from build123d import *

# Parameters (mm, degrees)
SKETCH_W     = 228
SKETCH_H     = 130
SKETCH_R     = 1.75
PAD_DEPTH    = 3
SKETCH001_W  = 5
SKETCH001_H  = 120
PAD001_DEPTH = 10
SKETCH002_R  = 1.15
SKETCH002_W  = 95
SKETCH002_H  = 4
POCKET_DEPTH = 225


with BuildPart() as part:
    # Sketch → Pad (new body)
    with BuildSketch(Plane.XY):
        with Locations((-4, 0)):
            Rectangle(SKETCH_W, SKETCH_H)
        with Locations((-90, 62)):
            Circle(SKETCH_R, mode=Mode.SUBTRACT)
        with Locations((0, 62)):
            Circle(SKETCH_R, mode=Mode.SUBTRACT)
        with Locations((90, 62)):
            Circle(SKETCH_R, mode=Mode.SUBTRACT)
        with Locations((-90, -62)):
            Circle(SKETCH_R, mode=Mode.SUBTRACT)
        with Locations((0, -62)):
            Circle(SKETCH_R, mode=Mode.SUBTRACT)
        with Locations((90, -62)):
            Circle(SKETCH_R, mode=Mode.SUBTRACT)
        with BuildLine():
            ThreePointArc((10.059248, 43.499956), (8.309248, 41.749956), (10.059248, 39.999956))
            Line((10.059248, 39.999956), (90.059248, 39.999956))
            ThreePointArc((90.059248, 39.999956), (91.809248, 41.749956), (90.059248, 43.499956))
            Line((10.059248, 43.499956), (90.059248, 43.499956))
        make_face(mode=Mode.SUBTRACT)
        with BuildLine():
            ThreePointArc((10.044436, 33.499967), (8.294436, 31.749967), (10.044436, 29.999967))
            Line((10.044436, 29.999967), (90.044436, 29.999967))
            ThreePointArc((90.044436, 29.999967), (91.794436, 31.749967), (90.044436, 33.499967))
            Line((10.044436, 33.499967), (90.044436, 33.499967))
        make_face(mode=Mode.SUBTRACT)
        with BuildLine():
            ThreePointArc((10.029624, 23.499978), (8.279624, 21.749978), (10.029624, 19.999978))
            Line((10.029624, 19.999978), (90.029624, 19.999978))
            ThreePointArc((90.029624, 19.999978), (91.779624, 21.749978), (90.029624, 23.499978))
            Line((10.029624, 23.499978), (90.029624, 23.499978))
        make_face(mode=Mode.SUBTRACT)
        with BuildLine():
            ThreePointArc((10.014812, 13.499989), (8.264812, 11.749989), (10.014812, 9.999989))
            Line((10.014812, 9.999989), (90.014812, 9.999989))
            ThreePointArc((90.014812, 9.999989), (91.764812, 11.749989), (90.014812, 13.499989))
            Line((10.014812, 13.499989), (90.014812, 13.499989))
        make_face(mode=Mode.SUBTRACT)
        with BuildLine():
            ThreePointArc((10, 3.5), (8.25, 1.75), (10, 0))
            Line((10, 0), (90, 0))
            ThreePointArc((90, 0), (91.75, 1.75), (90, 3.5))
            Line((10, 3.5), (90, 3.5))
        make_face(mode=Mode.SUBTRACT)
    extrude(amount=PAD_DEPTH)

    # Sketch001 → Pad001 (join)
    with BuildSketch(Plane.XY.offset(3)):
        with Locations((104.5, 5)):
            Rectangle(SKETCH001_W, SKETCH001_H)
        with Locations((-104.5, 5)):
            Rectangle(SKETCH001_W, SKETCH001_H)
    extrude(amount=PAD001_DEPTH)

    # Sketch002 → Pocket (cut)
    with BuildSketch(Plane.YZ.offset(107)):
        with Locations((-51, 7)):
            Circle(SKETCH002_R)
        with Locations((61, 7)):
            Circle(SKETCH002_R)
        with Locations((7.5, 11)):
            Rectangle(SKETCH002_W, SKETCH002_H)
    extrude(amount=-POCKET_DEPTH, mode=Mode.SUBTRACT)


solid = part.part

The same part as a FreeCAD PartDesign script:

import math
import FreeCAD as App
import Part
import Sketcher
from FreeCAD import Vector
Q = App.Units.Quantity


def add_polygon(sketch, points):
    """Adds a closed chain of lines whose ends are joined by coincident constraints."""
    first, n = sketch.GeometryCount, len(points)
    for a, b in zip(points, points[1:] + points[:1]):
        sketch.addGeometry(Part.LineSegment(App.Vector(*a, 0), App.Vector(*b, 0)), False)
    for i in range(n):
        sketch.addConstraint(Sketcher.Constraint("Coincident", first + i, 2, first + (i + 1) % n, 1))

doc = App.newDocument("Part")
body = doc.addObject("PartDesign::Body", "Body")

sketch1 = body.newObject("Sketcher::SketchObject", "Sketch")
sketch1.AttachmentSupport = (doc.getObject("XY_Plane"), [""])
sketch1.MapMode = "FlatFace"
add_polygon(sketch1, [(-118, 65), (-118, -65), (110, -65), (110, 65)])
sketch1.addGeometry(Part.Circle(Vector(-90, -62, 0), Vector(0, 0, 1), 1.8), False)
sketch1.addGeometry(Part.Circle(Vector(0, -62, 0), Vector(0, 0, 1), 1.8), False)
sketch1.addGeometry(Part.Circle(Vector(90, -62, 0), Vector(0, 0, 1), 1.8), False)
sketch1.addGeometry(Part.Circle(Vector(-90, 62, 0), Vector(0, 0, 1), 1.8), False)
sketch1.addGeometry(Part.Circle(Vector(0, 62, 0), Vector(0, 0, 1), 1.8), False)
sketch1.addGeometry(Part.ArcOfCircle(Part.Circle(Vector(10, 1.8, 0), Vector(0, 0, 1), 1.8), math.radians(90), math.radians(270)), False)
sketch1.addGeometry(Part.LineSegment(Vector(10, 3.5, 0), Vector(90, 3.5, 0)), False)
sketch1.addGeometry(Part.ArcOfCircle(Part.Circle(Vector(90, 1.8, 0), Vector(0, 0, 1), 1.8), math.radians(-90), math.radians(90)), False)
sketch1.addGeometry(Part.LineSegment(Vector(90, 0, 0), Vector(10, 0, 0)), False)
sketch1.addGeometry(Part.ArcOfCircle(Part.Circle(Vector(10, 11.7, 0), Vector(0, 0, 1), 1.8), math.radians(90), math.radians(270)), False)
sketch1.addGeometry(Part.LineSegment(Vector(10, 13.5, 0), Vector(90, 13.5, 0)), False)
sketch1.addGeometry(Part.ArcOfCircle(Part.Circle(Vector(90, 11.7, 0), Vector(0, 0, 1), 1.8), math.radians(-90), math.radians(90)), False)
sketch1.addGeometry(Part.LineSegment(Vector(90, 10, 0), Vector(10, 10, 0)), False)
sketch1.addGeometry(Part.ArcOfCircle(Part.Circle(Vector(10, 21.7, 0), Vector(0, 0, 1), 1.8), math.radians(90), math.radians(270)), False)
sketch1.addGeometry(Part.LineSegment(Vector(10, 23.5, 0), Vector(90, 23.5, 0)), False)
sketch1.addGeometry(Part.ArcOfCircle(Part.Circle(Vector(90, 21.7, 0), Vector(0, 0, 1), 1.8), math.radians(-90), math.radians(90)), False)
sketch1.addGeometry(Part.LineSegment(Vector(90, 20, 0), Vector(10, 20, 0)), False)
sketch1.addGeometry(Part.ArcOfCircle(Part.Circle(Vector(10, 31.7, 0), Vector(0, 0, 1), 1.8), math.radians(90), math.radians(270)), False)
sketch1.addGeometry(Part.LineSegment(Vector(10, 33.5, 0), Vector(90, 33.5, 0)), False)
sketch1.addGeometry(Part.ArcOfCircle(Part.Circle(Vector(90, 31.7, 0), Vector(0, 0, 1), 1.8), math.radians(-90), math.radians(90)), False)
sketch1.addGeometry(Part.LineSegment(Vector(90, 30, 0), Vector(10, 30, 0)), False)
sketch1.addGeometry(Part.ArcOfCircle(Part.Circle(Vector(10.1, 41.7, 0), Vector(0, 0, 1), 1.8), math.radians(90), math.radians(270)), False)
sketch1.addGeometry(Part.LineSegment(Vector(10.1, 43.5, 0), Vector(90.1, 43.5, 0)), False)
sketch1.addGeometry(Part.ArcOfCircle(Part.Circle(Vector(90.1, 41.7, 0), Vector(0, 0, 1), 1.8), math.radians(-90), math.radians(90)), False)
sketch1.addGeometry(Part.LineSegment(Vector(90.1, 40, 0), Vector(10.1, 40, 0)), False)
sketch1.addGeometry(Part.Circle(Vector(90, 62, 0), Vector(0, 0, 1), 1.8), False)
sketch1.addConstraint(Sketcher.Constraint("Tangent", 9, 1, 10, 1))
sketch1.addConstraint(Sketcher.Constraint("Tangent", 10, 2, 11, 2))
sketch1.addConstraint(Sketcher.Constraint("Tangent", 11, 1, 12, 1))
sketch1.addConstraint(Sketcher.Constraint("Tangent", 12, 2, 9, 2))
sketch1.addConstraint(Sketcher.Constraint("Tangent", 13, 1, 14, 1))
sketch1.addConstraint(Sketcher.Constraint("Tangent", 14, 2, 15, 2))
sketch1.addConstraint(Sketcher.Constraint("Tangent", 15, 1, 16, 1))
sketch1.addConstraint(Sketcher.Constraint("Tangent", 16, 2, 13, 2))
sketch1.addConstraint(Sketcher.Constraint("Tangent", 17, 1, 18, 1))
sketch1.addConstraint(Sketcher.Constraint("Tangent", 18, 2, 19, 2))
sketch1.addConstraint(Sketcher.Constraint("Tangent", 19, 1, 20, 1))
sketch1.addConstraint(Sketcher.Constraint("Tangent", 20, 2, 17, 2))
sketch1.addConstraint(Sketcher.Constraint("Tangent", 21, 1, 22, 1))
sketch1.addConstraint(Sketcher.Constraint("Tangent", 22, 2, 23, 2))
sketch1.addConstraint(Sketcher.Constraint("Tangent", 23, 1, 24, 1))
sketch1.addConstraint(Sketcher.Constraint("Tangent", 24, 2, 21, 2))
sketch1.addConstraint(Sketcher.Constraint("Tangent", 25, 1, 26, 1))
sketch1.addConstraint(Sketcher.Constraint("Tangent", 26, 2, 27, 2))
sketch1.addConstraint(Sketcher.Constraint("Tangent", 27, 1, 28, 1))
sketch1.addConstraint(Sketcher.Constraint("Tangent", 28, 2, 25, 2))
sketch1.addConstraint(Sketcher.Constraint("Vertical", 0))
sketch1.addConstraint(Sketcher.Constraint("Horizontal", 1))
sketch1.addConstraint(Sketcher.Constraint("Vertical", 2))
sketch1.addConstraint(Sketcher.Constraint("Horizontal", 3))
sketch1.addConstraint(Sketcher.Constraint("Horizontal", 10))
sketch1.addConstraint(Sketcher.Constraint("Horizontal", 12))
sketch1.addConstraint(Sketcher.Constraint("Horizontal", 14))
sketch1.addConstraint(Sketcher.Constraint("Horizontal", 16))
sketch1.addConstraint(Sketcher.Constraint("Horizontal", 18))
sketch1.addConstraint(Sketcher.Constraint("Horizontal", 20))
sketch1.addConstraint(Sketcher.Constraint("Horizontal", 22))
sketch1.addConstraint(Sketcher.Constraint("Horizontal", 24))
sketch1.addConstraint(Sketcher.Constraint("Horizontal", 26))
sketch1.addConstraint(Sketcher.Constraint("Horizontal", 28))
sketch1.addConstraint(Sketcher.Constraint("Equal", 4, 5))
sketch1.addConstraint(Sketcher.Constraint("Equal", 5, 6))
sketch1.addConstraint(Sketcher.Constraint("Equal", 6, 7))
sketch1.addConstraint(Sketcher.Constraint("Equal", 7, 8))
sketch1.addConstraint(Sketcher.Constraint("Equal", 8, 9))
sketch1.addConstraint(Sketcher.Constraint("Equal", 11, 13))
sketch1.addConstraint(Sketcher.Constraint("Equal", 15, 17))
sketch1.addConstraint(Sketcher.Constraint("Equal", 19, 21))
sketch1.addConstraint(Sketcher.Constraint("Equal", 23, 25))
sketch1.addConstraint(Sketcher.Constraint("Equal", 27, 29))
sketch1.addConstraint(Sketcher.Constraint("Symmetric", 6, 3, 7, 3, -1, 1))
sketch1.addConstraint(Sketcher.Constraint("Symmetric", 5, 3, 8, 3, -1, 1))
sketch1.addConstraint(Sketcher.Constraint("Symmetric", 4, 3, 29, 3, -1, 1))
sketch1.addConstraint(Sketcher.Constraint("Symmetric", 4, 3, 6, 3, -2))
sketch1.addConstraint(Sketcher.Constraint("PointOnObject", 5, 3, -2))
sketch1.addConstraint(Sketcher.Constraint("PointOnObject", 11, 1, -1))
sketch1.addConstraint(Sketcher.Constraint("Horizontal", 4, 3, 5, 3))
sketch1.addConstraint(Sketcher.Constraint("Vertical", 6, 3, 11, 3))
sketch1.addConstraint(Sketcher.Constraint("Equal", 12, 14))
sketch1.addConstraint(Sketcher.Constraint("Equal", 16, 18))
sketch1.addConstraint(Sketcher.Constraint("Equal", 20, 22))
sketch1.addConstraint(Sketcher.Constraint("Equal", 24, 26))
sketch1.addConstraint(Sketcher.Constraint("Diameter", 4, Q("3.5 mm")))
sketch1.addConstraint(Sketcher.Constraint("DistanceX", 1, 1, 1, 2, Q("228 mm")))
sketch1.addConstraint(Sketcher.Constraint("DistanceX", 10, 1, 10, 2, Q("80 mm")))
sketch1.addConstraint(Sketcher.Constraint("DistanceY", 0, 2, 0, 1, Q("130 mm")))
sketch1.addConstraint(Sketcher.Constraint("DistanceX", 4, 3, -1, 1, Q("90 mm")))
sketch1.addConstraint(Sketcher.Constraint("DistanceY", 4, 3, -1, 1, Q("62 mm")))
sketch1.addConstraint(Sketcher.Constraint("DistanceX", 0, 2, -1, 1, Q("118 mm")))
sketch1.addConstraint(Sketcher.Constraint("DistanceY", 0, 2, -1, 1, Q("65 mm")))
sketch1.addConstraint(Sketcher.Constraint("DistanceX", -1, 1, 13, 3, Q("10.014812 mm")))
sketch1.addConstraint(Sketcher.Constraint("DistanceY", -1, 1, 13, 3, Q("11.749989 mm")))
sketch1.addConstraint(Sketcher.Constraint("DistanceY", 13, 3, 17, 3, Q("9.999989 mm")))
sketch1.addConstraint(Sketcher.Constraint("DistanceX", 17, 3, 15, 3, Q("79.985188 mm")))
sketch1.addConstraint(Sketcher.Constraint("DistanceX", 17, 3, 21, 3, Q("0.014812 mm")))
sketch1.addConstraint(Sketcher.Constraint("DistanceY", 17, 3, 21, 3, Q("9.999989 mm")))
sketch1.addConstraint(Sketcher.Constraint("DistanceY", 21, 3, 25, 3, Q("9.999989 mm")))
sketch1.addConstraint(Sketcher.Constraint("DistanceX", 9, 3, 25, 3, Q("0.059248 mm")))
pad1 = body.newObject("PartDesign::Pad", "Pad")
pad1.Profile = sketch1
pad1.Length = 3

sketch2 = body.newObject("Sketcher::SketchObject", "Sketch001")
sketch2.AttachmentSupport = (doc.getObject("XY_Plane"), [""])
sketch2.MapMode = "FlatFace"
sketch2.AttachmentOffset = App.Placement(Vector(0, 0, 3), App.Rotation())
add_polygon(sketch2, [(102, 65), (102, -55), (107, -55), (107, 65)])
add_polygon(sketch2, [(-107, 65), (-107, -55), (-102, -55), (-102, 65)])
sketch2.addConstraint(Sketcher.Constraint("Vertical", 0))
sketch2.addConstraint(Sketcher.Constraint("Horizontal", 1))
sketch2.addConstraint(Sketcher.Constraint("Vertical", 2))
sketch2.addConstraint(Sketcher.Constraint("Horizontal", 3))
sketch2.addConstraint(Sketcher.Constraint("Vertical", 4))
sketch2.addConstraint(Sketcher.Constraint("Horizontal", 5))
sketch2.addConstraint(Sketcher.Constraint("Vertical", 6))
sketch2.addConstraint(Sketcher.Constraint("Horizontal", 7))
sketch2.addConstraint(Sketcher.Constraint("Symmetric", 1, 2, 4, 2, -2))
sketch2.addConstraint(Sketcher.Constraint("Symmetric", 3, 2, 6, 2, -2))
sketch2.addConstraint(Sketcher.Constraint("DistanceX", 1, 1, 1, 2, Q("5 mm")))
sketch2.addConstraint(Sketcher.Constraint("DistanceY", 0, 2, 0, 1, Q("120 mm")))
sketch2.addConstraint(Sketcher.Constraint("DistanceX", -1, 1, 0, 2, Q("102 mm")))
sketch2.addConstraint(Sketcher.Constraint("DistanceY", 0, 2, -1, 1, Q("55 mm")))
pad2 = body.newObject("PartDesign::Pad", "Pad001")
pad2.Profile = sketch2
pad2.Length = 10

sketch3 = body.newObject("Sketcher::SketchObject", "Sketch002")
sketch3.AttachmentSupport = (doc.getObject("YZ_Plane"), [""])
sketch3.MapMode = "FlatFace"
sketch3.AttachmentOffset = App.Placement(Vector(0, 0, 107), App.Rotation())
sketch3.addGeometry(Part.Circle(Vector(-51, 7, 0), Vector(0, 0, 1), 1.1), False)
sketch3.addGeometry(Part.Circle(Vector(61, 7, 0), Vector(0, 0, 1), 1.1), False)
add_polygon(sketch3, [(-40, 13), (-40, 9), (55, 9), (55, 13)])
sketch3.addConstraint(Sketcher.Constraint("Vertical", 2))
sketch3.addConstraint(Sketcher.Constraint("Horizontal", 3))
sketch3.addConstraint(Sketcher.Constraint("Vertical", 4))
sketch3.addConstraint(Sketcher.Constraint("Horizontal", 5))
sketch3.addConstraint(Sketcher.Constraint("Equal", 0, 1))
sketch3.addConstraint(Sketcher.Constraint("Horizontal", 0, 3, 1, 3))
sketch3.addConstraint(Sketcher.Constraint("Diameter", 0, Q("2.3 mm")))
sketch3.addConstraint(Sketcher.Constraint("DistanceX", 3, 1, 3, 2, Q("95 mm")))
sketch3.addConstraint(Sketcher.Constraint("DistanceY", 2, 2, 2, 1, Q("4 mm")))
sketch3.addConstraint(Sketcher.Constraint("DistanceX", 0, 3, -1, 1, Q("51 mm")))
sketch3.addConstraint(Sketcher.Constraint("DistanceY", -1, 1, 0, 3, Q("7 mm")))
sketch3.addConstraint(Sketcher.Constraint("DistanceX", -1, 1, 1, 3, Q("61 mm")))
sketch3.addConstraint(Sketcher.Constraint("DistanceX", 2, 2, -1, 1, Q("40 mm")))
sketch3.addConstraint(Sketcher.Constraint("DistanceY", -1, 1, 2, 2, Q("9 mm")))
pocket1 = body.newObject("PartDesign::Pocket", "Pocket")
pocket1.Profile = sketch3
pocket1.Length = 225

doc.recompute()
